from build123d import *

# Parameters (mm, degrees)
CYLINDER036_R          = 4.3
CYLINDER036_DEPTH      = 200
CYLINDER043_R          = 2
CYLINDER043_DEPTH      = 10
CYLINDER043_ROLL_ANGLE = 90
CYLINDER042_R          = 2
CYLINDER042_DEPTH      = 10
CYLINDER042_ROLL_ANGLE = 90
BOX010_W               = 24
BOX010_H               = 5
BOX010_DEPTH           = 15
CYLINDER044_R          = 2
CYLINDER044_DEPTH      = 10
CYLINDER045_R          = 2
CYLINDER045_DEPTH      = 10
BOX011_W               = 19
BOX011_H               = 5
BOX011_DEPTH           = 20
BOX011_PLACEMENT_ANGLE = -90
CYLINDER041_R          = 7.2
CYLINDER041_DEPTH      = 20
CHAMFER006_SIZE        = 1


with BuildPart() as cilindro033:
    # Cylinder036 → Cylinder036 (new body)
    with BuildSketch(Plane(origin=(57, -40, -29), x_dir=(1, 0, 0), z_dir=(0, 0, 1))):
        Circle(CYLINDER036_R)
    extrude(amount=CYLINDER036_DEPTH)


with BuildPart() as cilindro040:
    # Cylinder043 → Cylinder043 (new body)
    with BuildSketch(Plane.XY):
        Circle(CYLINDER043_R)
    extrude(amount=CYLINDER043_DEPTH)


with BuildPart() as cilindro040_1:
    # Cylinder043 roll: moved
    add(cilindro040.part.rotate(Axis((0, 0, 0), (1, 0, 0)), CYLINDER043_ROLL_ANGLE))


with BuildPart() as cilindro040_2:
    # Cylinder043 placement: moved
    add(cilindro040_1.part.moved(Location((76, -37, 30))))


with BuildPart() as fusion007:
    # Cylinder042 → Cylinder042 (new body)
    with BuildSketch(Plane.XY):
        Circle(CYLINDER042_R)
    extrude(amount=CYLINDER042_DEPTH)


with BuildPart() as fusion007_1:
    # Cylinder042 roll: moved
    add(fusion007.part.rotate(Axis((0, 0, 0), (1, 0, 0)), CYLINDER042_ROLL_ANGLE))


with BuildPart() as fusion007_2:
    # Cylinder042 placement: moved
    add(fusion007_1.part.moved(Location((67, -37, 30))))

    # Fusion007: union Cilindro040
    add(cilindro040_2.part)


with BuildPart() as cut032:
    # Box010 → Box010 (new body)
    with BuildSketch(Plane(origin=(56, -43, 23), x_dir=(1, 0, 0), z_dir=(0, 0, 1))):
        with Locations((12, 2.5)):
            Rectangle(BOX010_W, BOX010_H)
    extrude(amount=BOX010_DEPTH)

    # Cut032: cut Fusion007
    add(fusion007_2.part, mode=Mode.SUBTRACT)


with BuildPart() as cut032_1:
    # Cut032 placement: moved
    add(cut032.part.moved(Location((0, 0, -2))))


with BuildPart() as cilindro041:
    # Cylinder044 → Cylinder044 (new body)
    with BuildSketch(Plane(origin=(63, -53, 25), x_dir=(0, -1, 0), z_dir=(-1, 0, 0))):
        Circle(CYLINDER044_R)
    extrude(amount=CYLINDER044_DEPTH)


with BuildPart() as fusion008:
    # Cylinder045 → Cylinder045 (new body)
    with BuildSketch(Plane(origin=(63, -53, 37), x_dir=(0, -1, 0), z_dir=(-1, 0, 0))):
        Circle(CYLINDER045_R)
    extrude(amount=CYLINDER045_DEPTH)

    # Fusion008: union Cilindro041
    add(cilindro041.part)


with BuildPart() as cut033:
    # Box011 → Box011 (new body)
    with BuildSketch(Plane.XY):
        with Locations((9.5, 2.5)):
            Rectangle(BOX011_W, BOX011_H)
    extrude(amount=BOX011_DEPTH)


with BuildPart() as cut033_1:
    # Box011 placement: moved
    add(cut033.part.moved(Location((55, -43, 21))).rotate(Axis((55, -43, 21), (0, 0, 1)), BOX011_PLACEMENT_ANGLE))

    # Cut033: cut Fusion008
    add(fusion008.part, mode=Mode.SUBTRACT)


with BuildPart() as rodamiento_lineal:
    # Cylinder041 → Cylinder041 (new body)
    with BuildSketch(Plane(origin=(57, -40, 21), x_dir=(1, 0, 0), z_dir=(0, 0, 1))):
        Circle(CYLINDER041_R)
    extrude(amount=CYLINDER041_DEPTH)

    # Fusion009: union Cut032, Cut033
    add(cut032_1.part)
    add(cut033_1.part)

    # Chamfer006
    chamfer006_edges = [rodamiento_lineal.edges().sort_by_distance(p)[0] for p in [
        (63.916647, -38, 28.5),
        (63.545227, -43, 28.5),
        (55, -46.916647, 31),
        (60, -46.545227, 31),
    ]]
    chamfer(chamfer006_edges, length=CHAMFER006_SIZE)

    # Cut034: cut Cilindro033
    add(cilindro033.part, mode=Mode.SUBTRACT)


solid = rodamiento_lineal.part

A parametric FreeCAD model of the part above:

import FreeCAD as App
import Part
import Sketcher

V = App.Vector


def edges_at(feature, points):
    """Names of the edges that pass closest to the given points."""
    edges = feature.Shape.Edges
    near = lambda p: min(range(len(edges)), key=lambda i: edges[i].distToShape(Part.Vertex(*p))[0])
    return sorted({f"Edge{near(p) + 1}" for p in points})


def add_polygon(sketch, points):
    """Adds a closed chain of lines whose ends are joined by coincident constraints."""
    first, n = sketch.GeometryCount, len(points)
    for a, b in zip(points, points[1:] + points[:1]):
        sketch.addGeometry(Part.LineSegment(App.Vector(*a, 0), App.Vector(*b, 0)), False)
    for i in range(n):
        sketch.addConstraint(Sketcher.Constraint("Coincident", first + i, 2, first + (i + 1) % n, 1))

doc = App.newDocument("Part")
body = doc.addObject("PartDesign::Body", "Body")

# Sketch on XY plane
sketch1 = doc.addObject("Sketcher::SketchObject", "Sketch")
body.addObject(sketch1)
sketch1.AttachmentSupport = (doc.XY_Plane, [""])
sketch1.MapMode = "FlatFace"
sketch1.AttachmentOffset = App.Placement(V(0, 0, -29), App.Rotation())
sketch1.addGeometry(Part.Circle(V(57, -40, 0), V(0, 0, 1), 4.3), False)
sketch1.addConstraint([
    Sketcher.Constraint("Diameter", 0, 8.6),
    Sketcher.Constraint("DistanceX", -1, 1, 0, 3, 57.0),
    Sketcher.Constraint("DistanceY", 0, 3, -1, 1, 40.0),
])
pad1 = doc.addObject("PartDesign::Pad", "Pad")
body.addObject(pad1)
pad1.Profile = sketch1
pad1.Length = 200
body2 = doc.addObject("PartDesign::Body", "Body001")

# Sketch on XY plane
sketch2 = doc.addObject("Sketcher::SketchObject", "Sketch001")
body2.addObject(sketch2)
sketch2.AttachmentSupport = (doc.getObject("XY_Plane001"), [""])
sketch2.MapMode = "FlatFace"
sketch2.addGeometry(Part.Circle(V(0, 0, 0), V(0, 0, 1), 2), False)
sketch2.addConstraint([
    Sketcher.Constraint("Coincident", 0, 3, -1, 1),
    Sketcher.Constraint("Diameter", 0, 4.0),
])
pad2 = doc.addObject("PartDesign::Pad", "Pad001")
body2.addObject(pad2)
pad2.Profile = sketch2
pad2.Length = 10
body3 = doc.addObject("PartDesign::Body", "Body002")
doc.recompute()

body2.Placement = App.Placement(V(0, 0, 0), App.Rotation(V(1, 0, 0), 90))
boolean = doc.addObject("PartDesign::Boolean", "Boolean")
body3.addObject(boolean)
boolean.Type = "Fuse"
boolean.addObjects([body2])
body4 = doc.addObject("PartDesign::Body", "Body003")
doc.recompute()

body3.Placement = App.Placement(V(76, -37, 30), App.Rotation(V(0, 0, 1), 0))
boolean2 = doc.addObject("PartDesign::Boolean", "Boolean001")
body4.addObject(boolean2)
boolean2.Type = "Fuse"
boolean2.addObjects([body3])
body5 = doc.addObject("PartDesign::Body", "Body004")

# Sketch on XY plane
sketch3 = doc.addObject("Sketcher::SketchObject", "Sketch002")
body5.addObject(sketch3)
sketch3.AttachmentSupport = (doc.getObject("XY_Plane004"), [""])
sketch3.MapMode = "FlatFace"
sketch3.addGeometry(Part.Circle(V(0, 0, 0), V(0, 0, 1), 2), False)
sketch3.addConstraint([
    Sketcher.Constraint("Coincident", 0, 3, -1, 1),
    Sketcher.Constraint("Diameter", 0, 4.0),
])
pad3 = doc.addObject("PartDesign::Pad", "Pad002")
body5.addObject(pad3)
pad3.Profile = sketch3
pad3.Length = 10
body6 = doc.addObject("PartDesign::Body", "Body005")
doc.recompute()

body5.Placement = App.Placement(V(0, 0, 0), App.Rotation(V(1, 0, 0), 90))
boolean3 = doc.addObject("PartDesign::Boolean", "Boolean002")
body6.addObject(boolean3)
boolean3.Type = "Fuse"
boolean3.addObjects([body5])
body7 = doc.addObject("PartDesign::Body", "Body006")
body7.AllowCompound = True
doc.recompute()

body6.Placement = App.Placement(V(67, -37, 30), App.Rotation(V(0, 0, 1), 0))
boolean4 = doc.addObject("PartDesign::Boolean", "Boolean003")
body7.addObject(boolean4)
boolean4.Type = "Fuse"
boolean4.addObjects([body6])
doc.recompute()

boolean5 = doc.addObject("PartDesign::Boolean", "Boolean004")
body7.addObject(boolean5)
boolean5.Type = "Fuse"
boolean5.addObjects([body4])
body8 = doc.addObject("PartDesign::Body", "Body007")

# Sketch on XY plane
sketch4 = doc.addObject("Sketcher::SketchObject", "Sketch003")
body8.addObject(sketch4)
sketch4.AttachmentSupport = (doc.getObject("XY_Plane007"), [""])
sketch4.MapMode = "FlatFace"
sketch4.AttachmentOffset = App.Placement(V(0, 0, 23), App.Rotation())
add_polygon(sketch4, [(56, -38), (56, -43), (80, -43), (80, -38)])  # lines 0-3
sketch4.addConstraint([
    Sketcher.Constraint("Vertical", 0),
    Sketcher.Constraint("Horizontal", 1),
    Sketcher.Constraint("Vertical", 2),
    Sketcher.Constraint("Horizontal", 3),
    Sketcher.Constraint("DistanceX", 1, 1, 1, 2, 24.0),
    Sketcher.Constraint("DistanceY", 0, 2, 0, 1, 5.0),
    Sketcher.Constraint("DistanceX", -1, 1, 0, 2, 56.0),
    Sketcher.Constraint("DistanceY", 0, 2, -1, 1, 43.0),
])
pad4 = doc.addObject("PartDesign::Pad", "Pad003")
body8.addObject(pad4)
pad4.Profile = sketch4
pad4.Length = 15
doc.recompute()

boolean6 = doc.addObject("PartDesign::Boolean", "Boolean005")
body8.addObject(boolean6)
boolean6.Type = "Cut"
boolean6.addObjects([body7])
body9 = doc.addObject("PartDesign::Body", "Body008")
doc.recompute()

body8.Placement = App.Placement(V(0, 0, -2), App.Rotation(V(0, 0, 1), 0))
boolean7 = doc.addObject("PartDesign::Boolean", "Boolean006")
body9.addObject(boolean7)
boolean7.Type = "Fuse"
boolean7.addObjects([body8])
body10 = doc.addObject("PartDesign::Body", "Body009")

# Sketch on YZ plane
sketch5 = doc.addObject("Sketcher::SketchObject", "Sketch004")
body10.addObject(sketch5)
sketch5.AttachmentSupport = (doc.getObject("YZ_Plane009"), [""])
sketch5.MapMode = "FlatFace"
sketch5.AttachmentOffset = App.Placement(V(0, 0, 63), App.Rotation())
sketch5.addGeometry(Part.Circle(V(-53, 25, 0), V(0, 0, 1), 2), False)
sketch5.addConstraint([
    Sketcher.Constraint("Diameter", 0, 4.0),
    Sketcher.Constraint("DistanceX", 0, 3, -1, 1, 53.0),
    Sketcher.Constraint("DistanceY", -1, 1, 0, 3, 25.0),
])
pad5 = doc.addObject("PartDesign::Pad", "Pad004")
body10.addObject(pad5)
pad5.Profile = sketch5
pad5.Length = 10
pad5.Reversed = True
body11 = doc.addObject("PartDesign::Body", "Body010")
body11.AllowCompound = True

# Sketch on YZ plane
sketch6 = doc.addObject("Sketcher::SketchObject", "Sketch005")
body11.addObject(sketch6)
sketch6.AttachmentSupport = (doc.getObject("YZ_Plane010"), [""])
sketch6.MapMode = "FlatFace"
sketch6.AttachmentOffset = App.Placement(V(0, 0, 63), App.Rotation())
sketch6.addGeometry(Part.Circle(V(-53, 37, 0), V(0, 0, 1), 2), False)
sketch6.addConstraint([
    Sketcher.Constraint("Diameter", 0, 4.0),
    Sketcher.Constraint("DistanceX", 0, 3, -1, 1, 53.0),
    Sketcher.Constraint("DistanceY", -1, 1, 0, 3, 37.0),
])
pad6 = doc.addObject("PartDesign::Pad", "Pad005")
body11.addObject(pad6)
pad6.Profile = sketch6
pad6.Length = 10
pad6.Reversed = True
doc.recompute()

boolean8 = doc.addObject("PartDesign::Boolean", "Boolean007")
body11.addObject(boolean8)
boolean8.Type = "Fuse"
boolean8.addObjects([body10])
body12 = doc.addObject("PartDesign::Body", "Body011")

# Sketch on XY plane
sketch7 = doc.addObject("Sketcher::SketchObject", "Sketch006")
body12.addObject(sketch7)
sketch7.AttachmentSupport = (doc.getObject("XY_Plane011"), [""])
sketch7.MapMode = "FlatFace"
add_polygon(sketch7, [(0, 5), (0, 0), (19, 0), (19, 5)])  # lines 0-3
sketch7.addConstraint([
    Sketcher.Constraint("Vertical", 0),
    Sketcher.Constraint("Horizontal", 1),
    Sketcher.Constraint("Vertical", 2),
    Sketcher.Constraint("Horizontal", 3),
    Sketcher.Constraint("Coincident", 0, 2, -1, 1),
    Sketcher.Constraint("DistanceX", 1, 1, 1, 2, 19.0),
    Sketcher.Constraint("DistanceY", 0, 2, 0, 1, 5.0),
])
pad7 = doc.addObject("PartDesign::Pad", "Pad006")
body12.addObject(pad7)
pad7.Profile = sketch7
pad7.Length = 20
body13 = doc.addObject("PartDesign::Body", "Body012")
doc.recompute()

body12.Placement = App.Placement(V(55, -43, 21), App.Rotation(V(0, 0, 1), 270))
boolean9 = doc.addObject("PartDesign::Boolean", "Boolean008")
body13.addObject(boolean9)
boolean9.Type = "Fuse"
boolean9.addObjects([body12])
doc.recompute()

boolean10 = doc.addObject("PartDesign::Boolean", "Boolean009")
body13.addObject(boolean10)
boolean10.Type = "Cut"
boolean10.addObjects([body11])
body14 = doc.addObject("PartDesign::Body", "Body013")

# Sketch on XY plane
sketch8 = doc.addObject("Sketcher::SketchObject", "Sketch007")
body14.addObject(sketch8)
sketch8.AttachmentSupport = (doc.getObject("XY_Plane013"), [""])
sketch8.MapMode = "FlatFace"
sketch8.AttachmentOffset = App.Placement(V(0, 0, 21), App.Rotation())
sketch8.addGeometry(Part.Circle(V(57, -40, 0), V(0, 0, 1), 7.2), False)
sketch8.addConstraint([
    Sketcher.Constraint("Diameter", 0, 14.4),
    Sketcher.Constraint("DistanceX", -1, 1, 0, 3, 57.0),
    Sketcher.Constraint("DistanceY", 0, 3, -1, 1, 40.0),
])
pad8 = doc.addObject("PartDesign::Pad", "Pad007")
body14.addObject(pad8)
pad8.Profile = sketch8
pad8.Length = 20
doc.recompute()

boolean11 = doc.addObject("PartDesign::Boolean", "Boolean010")
body14.addObject(boolean11)
boolean11.Type = "Fuse"
boolean11.addObjects([body9])
doc.recompute()

boolean12 = doc.addObject("PartDesign::Boolean", "Boolean011")
body14.addObject(boolean12)
boolean12.Type = "Fuse"
boolean12.addObjects([body13])
doc.recompute()

chamfer = doc.addObject("PartDesign::Chamfer", "Chamfer")
body14.addObject(chamfer)
chamfer.Base = (boolean12, edges_at(boolean12, [
    (63.917, -38, 28.5),
    (63.545, -43, 28.5),
    (55, -46.917, 31),
    (60, -46.545, 31),
]))
chamfer.Size = 1
doc.recompute()

boolean13 = doc.addObject("PartDesign::Boolean", "Boolean012")
body14.addObject(boolean13)
boolean13.Type = "Cut"
boolean13.addObjects([body])

doc.recompute()
